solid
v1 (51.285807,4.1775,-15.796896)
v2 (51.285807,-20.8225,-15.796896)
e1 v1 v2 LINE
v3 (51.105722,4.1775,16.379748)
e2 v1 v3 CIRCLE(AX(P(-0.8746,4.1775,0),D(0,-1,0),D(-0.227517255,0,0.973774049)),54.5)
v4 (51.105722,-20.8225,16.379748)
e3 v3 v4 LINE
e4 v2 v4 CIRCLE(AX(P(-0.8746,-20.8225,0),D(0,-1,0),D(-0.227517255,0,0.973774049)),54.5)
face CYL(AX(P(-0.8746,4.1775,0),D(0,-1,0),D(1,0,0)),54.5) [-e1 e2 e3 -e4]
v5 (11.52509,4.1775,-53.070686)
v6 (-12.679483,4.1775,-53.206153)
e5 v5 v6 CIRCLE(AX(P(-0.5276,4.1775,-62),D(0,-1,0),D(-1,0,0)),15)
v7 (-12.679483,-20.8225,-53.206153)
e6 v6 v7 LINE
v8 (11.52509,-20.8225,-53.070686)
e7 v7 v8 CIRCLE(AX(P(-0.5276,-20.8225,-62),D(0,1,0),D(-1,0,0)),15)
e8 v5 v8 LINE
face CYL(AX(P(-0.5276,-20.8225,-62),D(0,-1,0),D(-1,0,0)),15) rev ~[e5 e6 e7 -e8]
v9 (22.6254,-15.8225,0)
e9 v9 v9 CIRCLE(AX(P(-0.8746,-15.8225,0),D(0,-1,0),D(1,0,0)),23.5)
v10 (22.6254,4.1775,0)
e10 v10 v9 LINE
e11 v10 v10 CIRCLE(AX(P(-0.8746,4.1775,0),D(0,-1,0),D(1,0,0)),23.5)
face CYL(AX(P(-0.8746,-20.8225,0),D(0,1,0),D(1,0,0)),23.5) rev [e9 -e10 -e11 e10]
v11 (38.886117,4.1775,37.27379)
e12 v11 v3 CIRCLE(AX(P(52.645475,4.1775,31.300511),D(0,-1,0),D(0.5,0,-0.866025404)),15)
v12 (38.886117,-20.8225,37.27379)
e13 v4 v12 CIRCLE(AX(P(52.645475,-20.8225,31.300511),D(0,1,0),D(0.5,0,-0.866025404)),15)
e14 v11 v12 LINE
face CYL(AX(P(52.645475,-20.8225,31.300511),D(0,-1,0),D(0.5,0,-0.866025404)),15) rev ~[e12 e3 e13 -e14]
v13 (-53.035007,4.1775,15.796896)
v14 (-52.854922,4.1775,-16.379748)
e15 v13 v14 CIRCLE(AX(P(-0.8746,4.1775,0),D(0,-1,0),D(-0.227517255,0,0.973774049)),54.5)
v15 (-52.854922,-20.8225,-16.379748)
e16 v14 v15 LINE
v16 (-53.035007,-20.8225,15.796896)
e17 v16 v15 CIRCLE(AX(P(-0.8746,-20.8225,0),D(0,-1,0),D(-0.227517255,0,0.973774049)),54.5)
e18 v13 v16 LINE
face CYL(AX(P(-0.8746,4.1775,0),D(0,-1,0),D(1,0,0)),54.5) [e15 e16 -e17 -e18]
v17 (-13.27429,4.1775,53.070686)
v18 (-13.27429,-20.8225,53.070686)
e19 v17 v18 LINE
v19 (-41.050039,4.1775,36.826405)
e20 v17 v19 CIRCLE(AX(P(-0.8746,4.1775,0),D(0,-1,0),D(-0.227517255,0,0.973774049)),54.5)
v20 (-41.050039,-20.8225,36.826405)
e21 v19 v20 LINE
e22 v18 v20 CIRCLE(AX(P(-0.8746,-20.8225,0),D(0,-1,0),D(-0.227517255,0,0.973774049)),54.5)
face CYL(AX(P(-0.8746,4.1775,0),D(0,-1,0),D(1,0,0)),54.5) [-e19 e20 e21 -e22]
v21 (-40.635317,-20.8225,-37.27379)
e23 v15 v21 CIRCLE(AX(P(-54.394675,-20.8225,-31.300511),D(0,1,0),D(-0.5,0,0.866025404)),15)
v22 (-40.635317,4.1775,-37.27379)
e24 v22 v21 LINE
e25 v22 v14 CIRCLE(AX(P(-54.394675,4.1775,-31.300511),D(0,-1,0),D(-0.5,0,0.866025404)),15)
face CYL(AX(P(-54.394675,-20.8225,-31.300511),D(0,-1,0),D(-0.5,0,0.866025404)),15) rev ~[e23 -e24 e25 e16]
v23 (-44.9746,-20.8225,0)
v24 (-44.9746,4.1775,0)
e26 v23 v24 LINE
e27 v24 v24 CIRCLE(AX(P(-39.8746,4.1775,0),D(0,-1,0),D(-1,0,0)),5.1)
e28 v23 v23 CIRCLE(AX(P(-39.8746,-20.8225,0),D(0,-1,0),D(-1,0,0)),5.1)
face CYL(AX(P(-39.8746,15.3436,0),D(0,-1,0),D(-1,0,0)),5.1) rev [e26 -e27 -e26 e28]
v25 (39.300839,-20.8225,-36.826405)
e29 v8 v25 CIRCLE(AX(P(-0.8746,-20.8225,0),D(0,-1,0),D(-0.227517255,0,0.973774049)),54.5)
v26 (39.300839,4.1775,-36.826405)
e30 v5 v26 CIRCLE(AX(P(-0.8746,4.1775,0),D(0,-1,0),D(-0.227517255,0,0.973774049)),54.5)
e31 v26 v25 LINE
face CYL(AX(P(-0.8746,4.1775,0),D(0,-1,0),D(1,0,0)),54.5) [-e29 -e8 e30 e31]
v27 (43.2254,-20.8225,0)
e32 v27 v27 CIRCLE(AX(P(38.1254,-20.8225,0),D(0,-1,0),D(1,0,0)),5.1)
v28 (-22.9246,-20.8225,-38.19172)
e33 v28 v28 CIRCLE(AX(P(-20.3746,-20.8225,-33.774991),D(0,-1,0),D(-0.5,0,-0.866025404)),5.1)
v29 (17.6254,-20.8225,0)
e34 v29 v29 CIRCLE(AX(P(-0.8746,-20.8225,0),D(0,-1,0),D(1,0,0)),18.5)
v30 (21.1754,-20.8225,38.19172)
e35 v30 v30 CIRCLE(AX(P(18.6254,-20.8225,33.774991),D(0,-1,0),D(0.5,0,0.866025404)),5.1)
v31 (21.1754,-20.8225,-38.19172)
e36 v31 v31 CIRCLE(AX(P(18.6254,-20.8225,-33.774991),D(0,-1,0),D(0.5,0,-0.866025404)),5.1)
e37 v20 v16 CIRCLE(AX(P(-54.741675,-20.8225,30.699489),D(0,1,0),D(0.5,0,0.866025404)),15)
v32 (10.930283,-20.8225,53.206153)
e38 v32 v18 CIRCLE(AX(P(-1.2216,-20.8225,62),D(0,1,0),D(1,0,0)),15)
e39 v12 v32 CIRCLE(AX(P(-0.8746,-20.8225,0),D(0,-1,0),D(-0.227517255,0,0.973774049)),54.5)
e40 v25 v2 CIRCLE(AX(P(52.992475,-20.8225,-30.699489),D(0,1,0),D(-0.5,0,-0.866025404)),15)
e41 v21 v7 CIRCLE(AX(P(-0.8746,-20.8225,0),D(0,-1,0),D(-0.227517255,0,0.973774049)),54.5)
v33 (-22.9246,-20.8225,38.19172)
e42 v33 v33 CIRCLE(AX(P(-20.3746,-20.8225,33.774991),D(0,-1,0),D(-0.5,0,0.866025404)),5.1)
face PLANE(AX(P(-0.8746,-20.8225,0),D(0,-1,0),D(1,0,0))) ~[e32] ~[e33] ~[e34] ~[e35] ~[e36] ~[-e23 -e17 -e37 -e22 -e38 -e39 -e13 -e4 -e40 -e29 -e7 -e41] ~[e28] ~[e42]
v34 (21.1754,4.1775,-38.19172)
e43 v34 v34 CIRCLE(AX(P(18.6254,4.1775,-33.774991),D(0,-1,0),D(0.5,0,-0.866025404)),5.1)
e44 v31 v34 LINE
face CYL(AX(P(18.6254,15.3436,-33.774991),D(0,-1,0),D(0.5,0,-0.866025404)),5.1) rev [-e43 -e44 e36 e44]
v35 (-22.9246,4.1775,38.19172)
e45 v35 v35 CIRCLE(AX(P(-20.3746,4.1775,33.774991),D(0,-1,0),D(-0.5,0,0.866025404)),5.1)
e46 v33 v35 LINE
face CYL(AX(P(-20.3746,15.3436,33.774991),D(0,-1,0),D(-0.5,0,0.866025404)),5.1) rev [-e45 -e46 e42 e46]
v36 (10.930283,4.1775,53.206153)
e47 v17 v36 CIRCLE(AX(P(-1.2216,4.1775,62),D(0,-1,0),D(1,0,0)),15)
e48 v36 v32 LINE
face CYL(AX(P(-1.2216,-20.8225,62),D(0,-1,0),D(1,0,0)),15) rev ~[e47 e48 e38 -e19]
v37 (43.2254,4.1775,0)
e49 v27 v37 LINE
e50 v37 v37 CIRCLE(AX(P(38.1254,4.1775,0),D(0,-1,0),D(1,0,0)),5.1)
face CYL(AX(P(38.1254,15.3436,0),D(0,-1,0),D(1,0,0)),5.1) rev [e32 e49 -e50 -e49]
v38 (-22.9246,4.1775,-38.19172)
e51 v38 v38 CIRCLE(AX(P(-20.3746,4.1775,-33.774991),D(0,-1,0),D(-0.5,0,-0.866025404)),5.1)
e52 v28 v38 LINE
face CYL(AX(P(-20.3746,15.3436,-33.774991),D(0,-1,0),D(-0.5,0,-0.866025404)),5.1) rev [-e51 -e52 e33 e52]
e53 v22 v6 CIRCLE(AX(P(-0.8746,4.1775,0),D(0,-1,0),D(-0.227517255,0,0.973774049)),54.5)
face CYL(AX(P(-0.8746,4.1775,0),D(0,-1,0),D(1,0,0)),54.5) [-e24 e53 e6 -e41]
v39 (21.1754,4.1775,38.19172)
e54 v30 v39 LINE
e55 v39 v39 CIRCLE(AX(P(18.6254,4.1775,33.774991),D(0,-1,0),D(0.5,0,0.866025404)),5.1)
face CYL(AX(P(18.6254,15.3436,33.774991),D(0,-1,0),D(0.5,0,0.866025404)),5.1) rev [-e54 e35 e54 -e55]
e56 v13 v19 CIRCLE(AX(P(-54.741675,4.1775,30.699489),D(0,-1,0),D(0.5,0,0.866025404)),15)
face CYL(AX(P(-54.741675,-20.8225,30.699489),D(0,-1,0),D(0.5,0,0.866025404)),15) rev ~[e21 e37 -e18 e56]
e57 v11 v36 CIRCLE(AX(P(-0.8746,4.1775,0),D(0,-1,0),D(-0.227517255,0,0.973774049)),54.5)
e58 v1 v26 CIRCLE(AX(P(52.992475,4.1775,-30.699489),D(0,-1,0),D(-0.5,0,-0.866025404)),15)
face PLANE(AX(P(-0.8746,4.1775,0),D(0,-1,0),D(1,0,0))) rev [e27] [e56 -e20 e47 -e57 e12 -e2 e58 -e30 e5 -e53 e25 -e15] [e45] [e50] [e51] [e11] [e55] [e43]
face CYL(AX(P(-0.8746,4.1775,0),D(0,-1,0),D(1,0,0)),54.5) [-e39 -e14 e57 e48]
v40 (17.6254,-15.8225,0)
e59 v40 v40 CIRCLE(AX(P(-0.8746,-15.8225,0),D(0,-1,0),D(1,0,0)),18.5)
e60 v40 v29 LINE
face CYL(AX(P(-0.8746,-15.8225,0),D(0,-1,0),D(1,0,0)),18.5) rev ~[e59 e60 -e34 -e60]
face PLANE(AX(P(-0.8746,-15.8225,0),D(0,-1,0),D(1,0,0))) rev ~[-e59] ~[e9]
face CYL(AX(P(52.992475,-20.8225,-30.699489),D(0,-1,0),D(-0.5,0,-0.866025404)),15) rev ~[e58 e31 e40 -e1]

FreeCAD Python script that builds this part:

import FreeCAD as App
import Part
import Sketcher

V = App.Vector
Q = App.Units.Quantity

doc = App.newDocument("Part")
body = doc.addObject("PartDesign::Body", "Body")

sketch1 = body.newObject("Sketcher::SketchObject", "Sketch")
sketch1.AttachmentSupport = (doc.getObject("XY_Plane"), [""])
sketch1.MapMode = "FlatFace"
sketch1.addGeometry(Part.LineSegment(V(23, 4, 0), V(23, -21, 0)), False)
sketch1.addGeometry(Part.LineSegment(V(23, -21, 0), V(54, -21, 0)), False)
sketch1.addGeometry(Part.LineSegment(V(54, -21, 0), V(54, 4, 0)), False)
sketch1.addGeometry(Part.LineSegment(V(54, 4, 0), V(23, 4, 0)), False)
sketch1.addGeometry(Part.LineSegment(V(-1, 4, 0), V(-1, -21, 0)), True)
sketch1.addConstraint(Sketcher.Constraint("Coincident", 0, 2, 1, 1))
sketch1.addConstraint(Sketcher.Constraint("Coincident", 1, 2, 2, 1))
sketch1.addConstraint(Sketcher.Constraint("Coincident", 2, 2, 3, 1))
sketch1.addConstraint(Sketcher.Constraint("Coincident", 3, 2, 0, 1))
sketch1.addConstraint(Sketcher.Constraint("Vertical", 0))
sketch1.addConstraint(Sketcher.Constraint("Horizontal", 1))
sketch1.addConstraint(Sketcher.Constraint("Vertical", 2))
sketch1.addConstraint(Sketcher.Constraint("Horizontal", 3))
sketch1.addConstraint(Sketcher.Constraint("Vertical", 4))
sketch1.addConstraint(Sketcher.Constraint("Horizontal", 3, 2, 4, 1))
sketch1.addConstraint(Sketcher.Constraint("Horizontal", 1, 2, 4, 2))
sketch1.addConstraint(Sketcher.Constraint("DistanceY", 0, 2, 0, 1, Q("25 mm")))
sketch1.addConstraint(Sketcher.Constraint("DistanceX", 1, 1, 1, 2, Q("31 mm")))
sketch1.addConstraint(Sketcher.Constraint("DistanceX", 4, 1, 3, 2, Q("23.5 mm")))
sketch1.addConstraint(Sketcher.Constraint("DistanceX", -1, 1, 0, 2, Q("22.6254 mm")))
sketch1.addConstraint(Sketcher.Constraint("DistanceY", 0, 2, -1, 1, Q("20.8225 mm")))
revolution = body.newObject("PartDesign::Revolution", "Revolution")
revolution.Profile = sketch1
revolution.ReferenceAxis = (sketch1, ["Axis0"])
revolution.Angle = 360

sketch2 = body.newObject("Sketcher::SketchObject", "Sketch001")
sketch2.AttachmentSupport = (doc.getObject("XY_Plane"), [""])
sketch2.MapMode = "FlatFace"
sketch2.addGeometry(Part.LineSegment(V(38, 15, 0), V(38, -24, 0)), False)
sketch2.addGeometry(Part.LineSegment(V(38, -24, 0), V(43, -24, 0)), False)
sketch2.addGeometry(Part.LineSegment(V(43, -24, 0), V(43, 15, 0)), False)
sketch2.addGeometry(Part.LineSegment(V(43, 15, 0), V(38, 15, 0)), False)
sketch2.addGeometry(Part.LineSegment(V(38, -24, 0), V(38, 15, 0)), True)
sketch2.addConstraint(Sketcher.Constraint("Coincident", 0, 2, 1, 1))
sketch2.addConstraint(Sketcher.Constraint("Coincident", 1, 2, 2, 1))
sketch2.addConstraint(Sketcher.Constraint("Coincident", 2, 2, 3, 1))
sketch2.addConstraint(Sketcher.Constraint("Coincident", 3, 2, 0, 1))
sketch2.addConstraint(Sketcher.Constraint("Vertical", 0))
sketch2.addConstraint(Sketcher.Constraint("Horizontal", 1))
sketch2.addConstraint(Sketcher.Constraint("Vertical", 2))
sketch2.addConstraint(Sketcher.Constraint("Horizontal", 3))
sketch2.addConstraint(Sketcher.Constraint("Vertical", 4))
sketch2.addConstraint(Sketcher.Constraint("Coincident", 4, 1, 0, 2))
sketch2.addConstraint(Sketcher.Constraint("Horizontal", 2, 2, 4, 2))
sketch2.addConstraint(Sketcher.Constraint("DistanceX", 1, 1, 1, 2, Q("5.1 mm")))
sketch2.addConstraint(Sketcher.Constraint("DistanceY", 0, 2, 0, 1, Q("39.189 mm")))
sketch2.addConstraint(Sketcher.Constraint("DistanceX", -1, 1, 0, 2, Q("38.1254 mm")))
sketch2.addConstraint(Sketcher.Constraint("DistanceY", 0, 2, -1, 1, Q("23.8453 mm")))
groove = body.newObject("PartDesign::Groove", "Groove")
groove.Profile = sketch2
groove.ReferenceAxis = (sketch2, ["Axis0"])
groove.Angle = 360

sketch3 = body.newObject("Sketcher::SketchObject", "Sketch002")
sketch3.AttachmentSupport = (doc.getObject("XY_Plane"), [""])
sketch3.MapMode = "FlatFace"
sketch3.addGeometry(Part.LineSegment(V(23, -21, 0), V(23, -16, 0)), False)
sketch3.addGeometry(Part.LineSegment(V(23, -16, 0), V(18, -16, 0)), False)
sketch3.addGeometry(Part.LineSegment(V(18, -16, 0), V(18, -21, 0)), False)
sketch3.addGeometry(Part.LineSegment(V(18, -21, 0), V(23, -21, 0)), False)
sketch3.addGeometry(Part.LineSegment(V(-1, -16, 0), V(-1, -21, 0)), True)
sketch3.addConstraint(Sketcher.Constraint("Coincident", 0, 2, 1, 1))
sketch3.addConstraint(Sketcher.Constraint("Coincident", 1, 2, 2, 1))
sketch3.addConstraint(Sketcher.Constraint("Coincident", 2, 2, 3, 1))
sketch3.addConstraint(Sketcher.Constraint("Coincident", 3, 2, 0, 1))
sketch3.addConstraint(Sketcher.Constraint("Vertical", 0))
sketch3.addConstraint(Sketcher.Constraint("Horizontal", 1))
sketch3.addConstraint(Sketcher.Constraint("Vertical", 2))
sketch3.addConstraint(Sketcher.Constraint("Horizontal", 3))
sketch3.addConstraint(Sketcher.Constraint("Vertical", 4))
sketch3.addConstraint(Sketcher.Constraint("Horizontal", 1, 2, 4, 1))
sketch3.addConstraint(Sketcher.Constraint("Horizontal", 3, 2, 4, 2))
sketch3.addConstraint(Sketcher.Constraint("Equal", 3, 0))
sketch3.addConstraint(Sketcher.Constraint("DistanceX", 1, 2, 1, 1, Q("5 mm")))
sketch3.addConstraint(Sketcher.Constraint("DistanceX", 4, 1, 1, 2, Q("18.5 mm")))
sketch3.addConstraint(Sketcher.Constraint("DistanceX", -1, 1, 0, 2, Q("22.6254 mm")))
sketch3.addConstraint(Sketcher.Constraint("DistanceY", 0, 2, -1, 1, Q("15.8225 mm")))
revolution2 = body.newObject("PartDesign::Revolution", "Revolution001")
revolution2.Profile = sketch3
revolution2.ReferenceAxis = (sketch3, ["Axis0"])
revolution2.Angle = 360
doc.recompute()

datumline = body.newObject("PartDesign::Line", "DatumLine")
datumline.Placement = App.Placement(V(-0.8746, 0, 0), App.Rotation(V(0, 0, 1), V(0, 1, 0)))
polarpattern = body.newObject("PartDesign::PolarPattern", "PolarPattern")
polarpattern.Originals = [groove]
polarpattern.Axis = (datumline, [""])
polarpattern.Angle = 360
polarpattern.Occurrences = 6
body.Tip = polarpattern

sketch4 = body.newObject("Sketcher::SketchObject", "Sketch003")
sketch4.AttachmentSupport = (doc.getObject("XZ_Plane"), [""])
sketch4.MapMode = "FlatFace"
sketch4.AttachmentOffset = App.Placement(V(0, 0, 20.8225), App.Rotation())
sketch4.addGeometry(Part.Circle(V(-1, 62, 0), V(0, 0, 1), 15), False)
sketch4.addConstraint(Sketcher.Constraint("Diameter", 0, Q("30 mm")))
sketch4.addConstraint(Sketcher.Constraint("DistanceY", -1, 1, 0, 3, Q("62 mm")))
sketch4.addConstraint(Sketcher.Constraint("DistanceX", 0, 3, -1, 1, Q("1.2216 mm")))
pocket1 = body.newObject("PartDesign::Pocket", "Pocket")
pocket1.Profile = sketch4
pocket1.Type = "ThroughAll"
doc.recompute()

datumline2 = body.newObject("PartDesign::Line", "DatumLine001")
datumline2.Placement = App.Placement(V(-0.8746, 0, 0), App.Rotation(V(0, 0, 1), V(0, 1, 0)))
polarpattern2 = body.newObject("PartDesign::PolarPattern", "PolarPattern001")
polarpattern2.Originals = [pocket1]
polarpattern2.Axis = (datumline2, [""])
polarpattern2.Angle = 360
polarpattern2.Occurrences = 6
body.Tip = polarpattern2

doc.recompute()
